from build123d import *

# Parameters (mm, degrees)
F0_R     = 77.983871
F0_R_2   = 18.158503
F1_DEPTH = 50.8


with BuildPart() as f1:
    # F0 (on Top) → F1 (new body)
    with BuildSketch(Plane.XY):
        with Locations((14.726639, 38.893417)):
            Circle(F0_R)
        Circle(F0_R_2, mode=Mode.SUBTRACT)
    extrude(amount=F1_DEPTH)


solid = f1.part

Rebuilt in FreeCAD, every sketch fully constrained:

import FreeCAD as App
import Part
import Sketcher
from FreeCAD import Vector
Q = App.Units.Quantity

doc = App.newDocument("Part")
body = doc.addObject("PartDesign::Body", "Body")

# Sketch on XY plane
sketch1 = body.newObject("Sketcher::SketchObject", "Sketch")
sketch1.AttachmentSupport = (doc.getObject("XY_Plane"), [""])
sketch1.MapMode = "FlatFace"
sketch1.addGeometry(Part.Circle(Vector(15, 39, 0), Vector(0, 0, 1), 78), False)
sketch1.addGeometry(Part.Circle(Vector(0, 0, 0), Vector(0, 0, 1), 18), False)
sketch1.addConstraint(Sketcher.Constraint("Coincident", 1, 3, -1, 1))
sketch1.addConstraint(Sketcher.Constraint("Diameter", 0, Q("155.967742 mm")))
sketch1.addConstraint(Sketcher.Constraint("Diameter", 1, Q("36.317006 mm")))
sketch1.addConstraint(Sketcher.Constraint("DistanceX", -1, 1, 0, 3, Q("14.726639 mm")))
sketch1.addConstraint(Sketcher.Constraint("DistanceY", -1, 1, 0, 3, Q("38.893417 mm")))
pad1 = body.newObject("PartDesign::Pad", "Pad")
pad1.Profile = sketch1
pad1.Length = Q("2 in")

doc.recompute()
